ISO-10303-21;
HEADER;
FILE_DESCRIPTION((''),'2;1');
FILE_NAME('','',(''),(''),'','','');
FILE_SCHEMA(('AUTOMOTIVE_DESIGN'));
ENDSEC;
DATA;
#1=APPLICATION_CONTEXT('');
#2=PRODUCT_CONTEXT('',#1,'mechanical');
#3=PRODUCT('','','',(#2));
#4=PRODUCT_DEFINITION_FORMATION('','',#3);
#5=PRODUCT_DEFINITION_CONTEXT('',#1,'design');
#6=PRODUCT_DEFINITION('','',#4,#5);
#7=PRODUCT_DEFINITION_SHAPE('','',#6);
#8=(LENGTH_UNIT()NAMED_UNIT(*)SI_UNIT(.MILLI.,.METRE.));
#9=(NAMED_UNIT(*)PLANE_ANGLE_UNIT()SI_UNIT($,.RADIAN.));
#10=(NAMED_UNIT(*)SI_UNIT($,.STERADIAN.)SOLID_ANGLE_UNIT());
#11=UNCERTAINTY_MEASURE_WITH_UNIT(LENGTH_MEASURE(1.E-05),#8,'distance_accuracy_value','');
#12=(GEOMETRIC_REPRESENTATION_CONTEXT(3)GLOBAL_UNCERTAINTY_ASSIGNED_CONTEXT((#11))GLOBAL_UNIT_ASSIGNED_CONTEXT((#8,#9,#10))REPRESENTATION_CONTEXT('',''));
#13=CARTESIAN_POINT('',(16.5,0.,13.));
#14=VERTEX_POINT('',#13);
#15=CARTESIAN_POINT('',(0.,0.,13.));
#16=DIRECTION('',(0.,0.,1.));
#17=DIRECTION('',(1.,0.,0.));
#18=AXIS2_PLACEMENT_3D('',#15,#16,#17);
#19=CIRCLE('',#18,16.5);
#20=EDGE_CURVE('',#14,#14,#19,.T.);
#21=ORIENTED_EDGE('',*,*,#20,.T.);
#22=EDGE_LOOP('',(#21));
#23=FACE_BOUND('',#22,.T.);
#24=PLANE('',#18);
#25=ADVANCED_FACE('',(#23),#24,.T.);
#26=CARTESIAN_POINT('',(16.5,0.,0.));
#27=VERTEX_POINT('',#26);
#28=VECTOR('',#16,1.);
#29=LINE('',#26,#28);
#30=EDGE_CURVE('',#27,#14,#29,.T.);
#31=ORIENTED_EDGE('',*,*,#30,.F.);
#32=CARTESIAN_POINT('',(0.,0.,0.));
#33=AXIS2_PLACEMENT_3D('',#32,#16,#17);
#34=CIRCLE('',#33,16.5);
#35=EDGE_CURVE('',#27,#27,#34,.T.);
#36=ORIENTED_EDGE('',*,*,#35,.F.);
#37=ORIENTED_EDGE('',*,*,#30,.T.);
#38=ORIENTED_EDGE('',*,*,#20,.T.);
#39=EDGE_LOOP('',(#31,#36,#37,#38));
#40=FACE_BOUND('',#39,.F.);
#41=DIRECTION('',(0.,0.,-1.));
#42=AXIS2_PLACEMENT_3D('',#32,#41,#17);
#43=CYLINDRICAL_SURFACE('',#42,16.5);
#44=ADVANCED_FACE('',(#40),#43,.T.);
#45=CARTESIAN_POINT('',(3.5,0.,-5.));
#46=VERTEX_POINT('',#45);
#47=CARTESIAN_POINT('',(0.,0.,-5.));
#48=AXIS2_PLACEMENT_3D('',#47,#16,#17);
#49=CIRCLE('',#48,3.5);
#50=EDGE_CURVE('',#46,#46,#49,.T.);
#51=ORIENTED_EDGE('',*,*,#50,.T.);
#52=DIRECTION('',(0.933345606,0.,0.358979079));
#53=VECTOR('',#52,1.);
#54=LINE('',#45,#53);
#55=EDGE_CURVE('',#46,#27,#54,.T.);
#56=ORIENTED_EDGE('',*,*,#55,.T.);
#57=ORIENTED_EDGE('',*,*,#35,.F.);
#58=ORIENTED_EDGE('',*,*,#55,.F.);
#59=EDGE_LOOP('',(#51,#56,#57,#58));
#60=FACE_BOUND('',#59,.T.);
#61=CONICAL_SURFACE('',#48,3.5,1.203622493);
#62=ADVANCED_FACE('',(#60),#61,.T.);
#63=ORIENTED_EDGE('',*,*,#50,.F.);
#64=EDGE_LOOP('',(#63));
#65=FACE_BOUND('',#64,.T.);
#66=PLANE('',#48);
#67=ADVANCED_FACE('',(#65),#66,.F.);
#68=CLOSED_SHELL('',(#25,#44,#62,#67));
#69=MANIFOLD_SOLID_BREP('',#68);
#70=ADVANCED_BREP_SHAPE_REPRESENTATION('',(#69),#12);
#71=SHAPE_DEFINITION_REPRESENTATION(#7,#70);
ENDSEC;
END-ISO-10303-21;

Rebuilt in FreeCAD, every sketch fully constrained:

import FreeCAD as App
import Part
import Sketcher
from FreeCAD import Vector

doc = App.newDocument("Part")
params = doc.addObject("Spreadsheet::Sheet", "Params")
for row, (alias, value) in enumerate([
    ("sketch1_diameter", "33 mm"),
    ("pad1_length", "13 mm"),
    ("sketch2_height", "5 mm"),
    ("sketch2_width", "3.5 mm"),
    ("sketch2_width2", "16.5 mm"),
    ("revolution_angle", "360 deg"),
], start=1):
    params.set(f"A{row}", alias)
    params.set(f"B{row}", "=" + value)
    params.setAlias(f"B{row}", alias)

body = doc.addObject("PartDesign::Body", "Body")

# Sketch on XY plane
sketch1 = body.newObject("Sketcher::SketchObject", "Sketch")
sketch1.AttachmentSupport = (doc.getObject("XY_Plane"), [""])
sketch1.MapMode = "FlatFace"
sketch1.addGeometry(Part.Circle(Vector(0, 0, 0), Vector(0, 0, 1), 16), False)
sketch1.addConstraint([
    Sketcher.Constraint("Coincident", 0, 3, -1, 1),
    Sketcher.Constraint("Diameter", 0, 33.0),
])
sketch1.setExpression("Constraints[1]", "Params.sketch1_diameter")
pad1 = body.newObject("PartDesign::Pad", "Pad")
pad1.Profile = sketch1
pad1.setExpression("Length", "Params.pad1_length")
body2 = doc.addObject("PartDesign::Body", "Body001")

# Sketch on XZ plane
sketch2 = body2.newObject("Sketcher::SketchObject", "Sketch001")
sketch2.AttachmentSupport = (doc.getObject("XZ_Plane001"), [""])
sketch2.MapMode = "FlatFace"
sketch2.addGeometry([
    Part.LineSegment(Vector(0, -5, 0), Vector(3.5, -5, 0)),
    Part.LineSegment(Vector(3.5, -5, 0), Vector(16.5, 0, 0)),
    Part.LineSegment(Vector(16.5, 0, 0), Vector(0, 0, 0)),
    Part.LineSegment(Vector(0, 0, 0), Vector(0, -5, 0)),
], False)
sketch2.addConstraint([
    Sketcher.Constraint("Coincident", 0, 2, 1, 1),
    Sketcher.Constraint("Coincident", 1, 2, 2, 1),
    Sketcher.Constraint("Coincident", 2, 2, 3, 1),
    Sketcher.Constraint("Coincident", 3, 2, 0, 1),
    Sketcher.Constraint("Horizontal", 0),
    Sketcher.Constraint("Horizontal", 2),
    Sketcher.Constraint("Vertical", 3),
    Sketcher.Constraint("Coincident", 2, 2, -1, 1),
    Sketcher.Constraint("DistanceY", 3, 2, 3, 1, 5.0),
    Sketcher.Constraint("DistanceX", 0, 1, 0, 2, 3.5),
    Sketcher.Constraint("DistanceX", 2, 2, 2, 1, 16.5),
])
sketch2.setExpression("Constraints[8]", "Params.sketch2_height")
sketch2.setExpression("Constraints[9]", "Params.sketch2_width")
sketch2.setExpression("Constraints[10]", "Params.sketch2_width2")
revolution = body2.newObject("PartDesign::Revolution", "Revolution")
revolution.Profile = sketch2
revolution.ReferenceAxis = (sketch2, ["V_Axis"])
revolution.setExpression("Angle", "Params.revolution_angle")
doc.recompute()

boolean = body2.newObject("PartDesign::Boolean", "Boolean")
boolean.Type = "Fuse"
boolean.addObjects([body])

doc.recompute()
